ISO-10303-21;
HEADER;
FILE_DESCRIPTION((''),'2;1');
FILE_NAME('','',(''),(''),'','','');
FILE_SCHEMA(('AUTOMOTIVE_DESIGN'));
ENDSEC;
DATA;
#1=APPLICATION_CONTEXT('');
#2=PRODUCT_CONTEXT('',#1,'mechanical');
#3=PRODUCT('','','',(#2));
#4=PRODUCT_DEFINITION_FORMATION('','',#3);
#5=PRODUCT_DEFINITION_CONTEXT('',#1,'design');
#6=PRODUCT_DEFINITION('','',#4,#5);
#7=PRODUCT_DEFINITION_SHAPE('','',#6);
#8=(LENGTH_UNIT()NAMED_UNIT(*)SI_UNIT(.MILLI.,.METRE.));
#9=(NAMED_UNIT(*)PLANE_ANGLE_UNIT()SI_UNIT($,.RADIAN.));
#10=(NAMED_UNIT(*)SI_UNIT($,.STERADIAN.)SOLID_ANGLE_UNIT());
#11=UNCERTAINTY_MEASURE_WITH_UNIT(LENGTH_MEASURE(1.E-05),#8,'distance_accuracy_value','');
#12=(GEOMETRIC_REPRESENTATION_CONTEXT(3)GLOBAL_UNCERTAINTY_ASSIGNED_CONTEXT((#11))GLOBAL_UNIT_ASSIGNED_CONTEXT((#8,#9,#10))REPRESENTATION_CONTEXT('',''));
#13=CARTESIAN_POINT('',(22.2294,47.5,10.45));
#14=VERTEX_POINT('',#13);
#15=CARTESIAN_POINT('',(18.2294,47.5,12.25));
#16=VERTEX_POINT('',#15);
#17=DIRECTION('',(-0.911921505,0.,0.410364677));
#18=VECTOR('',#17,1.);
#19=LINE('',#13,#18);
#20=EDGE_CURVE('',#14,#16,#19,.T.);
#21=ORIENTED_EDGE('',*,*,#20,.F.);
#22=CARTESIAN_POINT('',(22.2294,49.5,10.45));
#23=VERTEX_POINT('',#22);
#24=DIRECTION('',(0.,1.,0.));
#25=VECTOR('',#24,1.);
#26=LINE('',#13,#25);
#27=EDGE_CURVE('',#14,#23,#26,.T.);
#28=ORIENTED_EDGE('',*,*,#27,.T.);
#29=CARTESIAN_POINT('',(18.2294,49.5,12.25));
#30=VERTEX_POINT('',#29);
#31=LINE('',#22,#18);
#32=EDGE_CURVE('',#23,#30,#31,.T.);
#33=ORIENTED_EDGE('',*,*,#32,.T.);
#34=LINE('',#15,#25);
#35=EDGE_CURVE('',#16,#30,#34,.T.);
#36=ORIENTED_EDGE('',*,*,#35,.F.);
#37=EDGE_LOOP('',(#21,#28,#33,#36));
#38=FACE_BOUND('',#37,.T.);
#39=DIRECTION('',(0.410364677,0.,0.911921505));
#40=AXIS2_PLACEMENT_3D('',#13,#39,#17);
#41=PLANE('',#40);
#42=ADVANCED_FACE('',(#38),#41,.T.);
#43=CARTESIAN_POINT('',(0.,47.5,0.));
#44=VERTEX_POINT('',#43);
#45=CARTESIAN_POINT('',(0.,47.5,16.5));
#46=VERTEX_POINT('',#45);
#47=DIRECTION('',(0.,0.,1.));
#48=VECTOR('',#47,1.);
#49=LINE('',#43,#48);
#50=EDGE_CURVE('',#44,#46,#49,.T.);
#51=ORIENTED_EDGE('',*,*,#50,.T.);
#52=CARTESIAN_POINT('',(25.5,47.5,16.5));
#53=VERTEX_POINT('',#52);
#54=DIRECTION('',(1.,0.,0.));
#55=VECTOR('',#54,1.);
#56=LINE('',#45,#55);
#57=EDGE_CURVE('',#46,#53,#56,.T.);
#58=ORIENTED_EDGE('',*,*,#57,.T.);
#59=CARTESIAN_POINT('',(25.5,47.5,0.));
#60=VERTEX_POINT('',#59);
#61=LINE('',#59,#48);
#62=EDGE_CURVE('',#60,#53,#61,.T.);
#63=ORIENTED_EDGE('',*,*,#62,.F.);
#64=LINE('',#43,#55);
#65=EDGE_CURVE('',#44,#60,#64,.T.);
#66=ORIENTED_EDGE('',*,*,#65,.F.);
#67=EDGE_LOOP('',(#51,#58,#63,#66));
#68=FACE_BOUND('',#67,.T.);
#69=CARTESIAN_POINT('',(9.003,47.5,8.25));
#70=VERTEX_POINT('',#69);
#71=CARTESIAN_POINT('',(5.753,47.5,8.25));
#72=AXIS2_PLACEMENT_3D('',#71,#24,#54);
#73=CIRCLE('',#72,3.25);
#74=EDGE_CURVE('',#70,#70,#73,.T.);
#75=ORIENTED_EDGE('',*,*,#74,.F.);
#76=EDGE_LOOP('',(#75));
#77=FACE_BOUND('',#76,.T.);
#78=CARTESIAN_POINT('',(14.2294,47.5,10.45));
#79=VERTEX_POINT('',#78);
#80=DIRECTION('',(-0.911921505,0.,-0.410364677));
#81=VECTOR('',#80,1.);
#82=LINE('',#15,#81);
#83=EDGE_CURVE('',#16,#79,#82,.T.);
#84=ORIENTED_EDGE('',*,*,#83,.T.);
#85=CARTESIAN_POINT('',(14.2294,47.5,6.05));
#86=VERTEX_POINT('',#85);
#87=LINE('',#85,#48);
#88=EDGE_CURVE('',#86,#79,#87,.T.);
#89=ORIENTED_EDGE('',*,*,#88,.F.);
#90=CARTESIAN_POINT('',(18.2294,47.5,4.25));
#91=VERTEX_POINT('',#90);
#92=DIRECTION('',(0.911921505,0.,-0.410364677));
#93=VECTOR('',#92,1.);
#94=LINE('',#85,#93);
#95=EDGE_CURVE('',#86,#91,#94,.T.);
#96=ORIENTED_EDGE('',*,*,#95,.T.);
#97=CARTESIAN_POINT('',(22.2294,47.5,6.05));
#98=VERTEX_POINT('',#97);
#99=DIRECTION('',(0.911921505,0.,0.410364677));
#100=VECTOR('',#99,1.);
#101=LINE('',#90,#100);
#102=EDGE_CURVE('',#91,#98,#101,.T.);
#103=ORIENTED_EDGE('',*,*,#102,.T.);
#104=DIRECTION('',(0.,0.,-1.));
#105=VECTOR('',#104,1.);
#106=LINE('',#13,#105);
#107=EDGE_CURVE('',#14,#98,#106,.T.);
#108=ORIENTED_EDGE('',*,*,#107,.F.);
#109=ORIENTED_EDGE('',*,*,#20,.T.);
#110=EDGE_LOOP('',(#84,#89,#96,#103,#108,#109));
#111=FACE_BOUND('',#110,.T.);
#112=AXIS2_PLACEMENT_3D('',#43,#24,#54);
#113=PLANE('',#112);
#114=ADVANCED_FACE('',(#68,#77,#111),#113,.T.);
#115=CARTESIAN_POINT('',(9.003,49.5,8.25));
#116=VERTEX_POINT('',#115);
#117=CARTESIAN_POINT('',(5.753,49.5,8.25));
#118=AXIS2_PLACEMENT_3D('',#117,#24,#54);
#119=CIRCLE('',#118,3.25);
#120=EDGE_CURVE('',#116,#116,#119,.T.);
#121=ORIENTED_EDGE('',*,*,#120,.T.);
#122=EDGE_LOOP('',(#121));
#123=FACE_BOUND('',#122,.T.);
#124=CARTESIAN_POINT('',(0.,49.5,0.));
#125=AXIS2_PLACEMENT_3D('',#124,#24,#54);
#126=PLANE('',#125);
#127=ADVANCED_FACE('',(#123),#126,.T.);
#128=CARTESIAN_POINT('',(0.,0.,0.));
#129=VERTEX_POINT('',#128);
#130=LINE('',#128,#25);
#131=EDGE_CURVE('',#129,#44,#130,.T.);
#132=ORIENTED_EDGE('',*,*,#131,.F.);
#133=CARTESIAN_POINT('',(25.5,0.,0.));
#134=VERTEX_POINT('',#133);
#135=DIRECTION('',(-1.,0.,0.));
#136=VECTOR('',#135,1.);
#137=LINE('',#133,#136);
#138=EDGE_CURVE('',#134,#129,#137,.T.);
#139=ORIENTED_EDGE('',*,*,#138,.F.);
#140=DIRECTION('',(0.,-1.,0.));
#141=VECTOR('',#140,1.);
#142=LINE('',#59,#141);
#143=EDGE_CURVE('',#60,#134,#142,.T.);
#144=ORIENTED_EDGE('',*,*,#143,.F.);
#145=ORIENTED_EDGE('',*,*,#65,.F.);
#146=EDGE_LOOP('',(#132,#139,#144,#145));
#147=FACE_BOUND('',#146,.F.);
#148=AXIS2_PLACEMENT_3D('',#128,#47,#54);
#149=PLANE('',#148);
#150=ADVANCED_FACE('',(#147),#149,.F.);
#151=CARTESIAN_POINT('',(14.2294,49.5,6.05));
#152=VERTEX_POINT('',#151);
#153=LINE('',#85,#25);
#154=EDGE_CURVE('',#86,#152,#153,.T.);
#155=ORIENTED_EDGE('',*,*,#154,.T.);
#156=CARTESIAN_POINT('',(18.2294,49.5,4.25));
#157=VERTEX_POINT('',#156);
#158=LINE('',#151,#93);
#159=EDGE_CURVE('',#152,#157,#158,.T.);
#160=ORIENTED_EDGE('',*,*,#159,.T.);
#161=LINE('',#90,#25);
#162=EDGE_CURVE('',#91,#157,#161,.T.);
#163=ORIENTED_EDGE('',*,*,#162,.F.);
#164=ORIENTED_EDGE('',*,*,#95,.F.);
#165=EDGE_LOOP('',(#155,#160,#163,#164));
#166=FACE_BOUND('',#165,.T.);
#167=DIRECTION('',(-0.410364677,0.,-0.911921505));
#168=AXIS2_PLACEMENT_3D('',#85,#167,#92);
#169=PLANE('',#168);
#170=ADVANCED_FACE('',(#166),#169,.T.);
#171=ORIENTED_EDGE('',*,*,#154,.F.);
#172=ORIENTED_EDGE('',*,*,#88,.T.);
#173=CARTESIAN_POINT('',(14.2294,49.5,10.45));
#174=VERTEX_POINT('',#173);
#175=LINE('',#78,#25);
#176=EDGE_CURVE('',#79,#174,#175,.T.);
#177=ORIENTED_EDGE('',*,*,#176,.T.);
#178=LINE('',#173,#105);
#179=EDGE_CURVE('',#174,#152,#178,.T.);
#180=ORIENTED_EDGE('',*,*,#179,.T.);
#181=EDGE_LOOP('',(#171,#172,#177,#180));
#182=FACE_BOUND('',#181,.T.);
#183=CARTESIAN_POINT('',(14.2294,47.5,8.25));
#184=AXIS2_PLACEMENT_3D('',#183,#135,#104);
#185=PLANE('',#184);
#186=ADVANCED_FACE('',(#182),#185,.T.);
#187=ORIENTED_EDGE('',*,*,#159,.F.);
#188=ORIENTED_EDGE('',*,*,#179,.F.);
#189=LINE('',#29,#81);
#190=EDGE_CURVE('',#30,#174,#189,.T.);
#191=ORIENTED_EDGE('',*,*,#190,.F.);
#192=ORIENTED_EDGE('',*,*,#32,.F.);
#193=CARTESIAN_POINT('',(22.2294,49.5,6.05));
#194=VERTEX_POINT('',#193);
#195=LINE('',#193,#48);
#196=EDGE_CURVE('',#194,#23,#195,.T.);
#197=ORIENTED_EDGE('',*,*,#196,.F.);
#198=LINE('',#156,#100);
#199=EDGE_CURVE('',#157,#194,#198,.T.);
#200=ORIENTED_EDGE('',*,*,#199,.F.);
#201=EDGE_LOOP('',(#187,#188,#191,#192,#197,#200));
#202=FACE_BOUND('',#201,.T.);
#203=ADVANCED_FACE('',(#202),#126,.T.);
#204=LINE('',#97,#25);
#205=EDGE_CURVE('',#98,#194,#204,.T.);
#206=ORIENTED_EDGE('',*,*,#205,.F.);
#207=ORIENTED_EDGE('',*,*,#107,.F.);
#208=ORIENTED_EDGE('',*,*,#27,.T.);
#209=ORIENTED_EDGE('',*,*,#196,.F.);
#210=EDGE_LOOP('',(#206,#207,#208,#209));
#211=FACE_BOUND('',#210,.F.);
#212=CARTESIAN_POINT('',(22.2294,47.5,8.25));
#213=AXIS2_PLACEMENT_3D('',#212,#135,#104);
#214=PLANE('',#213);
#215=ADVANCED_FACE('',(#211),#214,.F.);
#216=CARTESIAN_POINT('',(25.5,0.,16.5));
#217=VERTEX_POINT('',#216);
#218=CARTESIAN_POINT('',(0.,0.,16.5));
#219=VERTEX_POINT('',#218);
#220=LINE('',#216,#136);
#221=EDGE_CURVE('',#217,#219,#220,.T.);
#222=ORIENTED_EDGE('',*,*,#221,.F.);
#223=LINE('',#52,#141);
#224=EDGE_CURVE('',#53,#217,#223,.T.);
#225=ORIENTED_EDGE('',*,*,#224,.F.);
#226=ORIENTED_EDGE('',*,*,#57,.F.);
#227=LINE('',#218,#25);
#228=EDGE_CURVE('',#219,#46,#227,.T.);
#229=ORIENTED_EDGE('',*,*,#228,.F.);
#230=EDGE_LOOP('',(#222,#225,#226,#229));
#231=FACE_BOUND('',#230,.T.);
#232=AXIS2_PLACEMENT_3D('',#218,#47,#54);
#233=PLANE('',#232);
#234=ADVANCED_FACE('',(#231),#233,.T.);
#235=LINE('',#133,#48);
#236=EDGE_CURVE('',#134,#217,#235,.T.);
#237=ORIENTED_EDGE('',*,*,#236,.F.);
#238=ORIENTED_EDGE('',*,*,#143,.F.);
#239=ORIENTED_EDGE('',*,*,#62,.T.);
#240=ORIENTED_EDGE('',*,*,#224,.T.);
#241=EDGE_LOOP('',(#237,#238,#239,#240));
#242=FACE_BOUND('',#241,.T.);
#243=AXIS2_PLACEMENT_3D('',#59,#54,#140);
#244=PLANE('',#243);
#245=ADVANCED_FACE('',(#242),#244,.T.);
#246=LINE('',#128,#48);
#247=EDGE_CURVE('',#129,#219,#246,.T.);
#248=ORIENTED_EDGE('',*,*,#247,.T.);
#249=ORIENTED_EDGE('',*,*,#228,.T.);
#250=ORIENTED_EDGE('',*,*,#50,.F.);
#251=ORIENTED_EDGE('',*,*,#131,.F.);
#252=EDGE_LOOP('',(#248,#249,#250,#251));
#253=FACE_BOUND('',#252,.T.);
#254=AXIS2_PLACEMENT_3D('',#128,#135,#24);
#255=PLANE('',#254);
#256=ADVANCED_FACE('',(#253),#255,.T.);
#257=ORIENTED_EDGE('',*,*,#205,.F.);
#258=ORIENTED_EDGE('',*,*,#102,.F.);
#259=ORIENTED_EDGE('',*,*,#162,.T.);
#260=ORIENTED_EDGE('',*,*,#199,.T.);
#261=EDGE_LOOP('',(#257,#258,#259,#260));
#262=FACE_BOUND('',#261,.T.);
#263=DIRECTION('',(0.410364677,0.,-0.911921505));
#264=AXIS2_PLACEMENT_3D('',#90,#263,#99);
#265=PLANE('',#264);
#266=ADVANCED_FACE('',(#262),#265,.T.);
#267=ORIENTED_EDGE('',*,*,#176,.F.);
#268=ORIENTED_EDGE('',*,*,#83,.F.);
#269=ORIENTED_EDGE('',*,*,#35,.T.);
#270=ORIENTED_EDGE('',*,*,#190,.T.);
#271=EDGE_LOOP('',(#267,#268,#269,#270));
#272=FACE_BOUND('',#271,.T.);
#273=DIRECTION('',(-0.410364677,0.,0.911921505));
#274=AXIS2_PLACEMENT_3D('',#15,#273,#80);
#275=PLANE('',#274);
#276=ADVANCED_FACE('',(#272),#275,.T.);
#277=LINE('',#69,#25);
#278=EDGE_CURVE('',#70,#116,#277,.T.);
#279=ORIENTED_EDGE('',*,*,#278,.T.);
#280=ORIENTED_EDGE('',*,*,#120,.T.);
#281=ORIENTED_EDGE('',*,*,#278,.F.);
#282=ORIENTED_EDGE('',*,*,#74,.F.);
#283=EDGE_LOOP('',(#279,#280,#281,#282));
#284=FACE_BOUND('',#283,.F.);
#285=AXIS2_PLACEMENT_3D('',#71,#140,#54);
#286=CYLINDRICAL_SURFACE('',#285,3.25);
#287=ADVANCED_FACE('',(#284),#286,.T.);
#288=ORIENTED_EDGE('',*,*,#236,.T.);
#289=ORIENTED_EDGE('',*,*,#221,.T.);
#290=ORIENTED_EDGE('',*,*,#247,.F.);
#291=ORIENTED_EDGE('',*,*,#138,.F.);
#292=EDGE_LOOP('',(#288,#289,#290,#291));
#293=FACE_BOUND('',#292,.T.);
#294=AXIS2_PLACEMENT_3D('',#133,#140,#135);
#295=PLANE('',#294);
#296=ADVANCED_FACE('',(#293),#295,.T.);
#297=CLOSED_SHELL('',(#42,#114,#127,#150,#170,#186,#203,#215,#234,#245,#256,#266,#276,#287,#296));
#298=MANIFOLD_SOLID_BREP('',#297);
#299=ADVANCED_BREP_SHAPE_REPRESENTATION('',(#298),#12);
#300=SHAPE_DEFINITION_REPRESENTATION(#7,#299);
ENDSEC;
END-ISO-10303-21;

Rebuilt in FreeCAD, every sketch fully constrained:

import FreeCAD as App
import Part
import Sketcher
from FreeCAD import Vector


def add_polygon(sketch, points):
    """Adds a closed chain of lines whose ends are joined by coincident constraints."""
    first, n = sketch.GeometryCount, len(points)
    for a, b in zip(points, points[1:] + points[:1]):
        sketch.addGeometry(Part.LineSegment(App.Vector(*a, 0), App.Vector(*b, 0)), False)
    for i in range(n):
        sketch.addConstraint(Sketcher.Constraint("Coincident", first + i, 2, first + (i + 1) % n, 1))

doc = App.newDocument("Part")
body = doc.addObject("PartDesign::Body", "Body")

sketch1 = body.newObject("Sketcher::SketchObject", "Sketch")
sketch1.AttachmentSupport = (doc.getObject("XY_Plane"), [""])
sketch1.MapMode = "FlatFace"
add_polygon(sketch1, [(0, 48), (0, 0), (26, 0), (26, 48)])
sketch1.addConstraint([
    Sketcher.Constraint("Vertical", 0),
    Sketcher.Constraint("Horizontal", 1),
    Sketcher.Constraint("Vertical", 2),
    Sketcher.Constraint("Horizontal", 3),
    Sketcher.Constraint("Coincident", 0, 2, -1, 1),
    Sketcher.Constraint("DistanceX", 1, 1, 1, 2, 25.5),
    Sketcher.Constraint("DistanceY", 0, 2, 0, 1, 47.5),
])
pad1 = body.newObject("PartDesign::Pad", "Pad")
pad1.Profile = sketch1
pad1.Length = 16.5

sketch2 = body.newObject("Sketcher::SketchObject", "Sketch001")
sketch2.AttachmentSupport = (doc.getObject("XZ_Plane"), [""])
sketch2.MapMode = "FlatFace"
sketch2.AttachmentOffset = App.Placement(Vector(0, 0, -47.5), App.Rotation())
sketch2.addGeometry(Part.Circle(Vector(5.8, 8.2, 0), Vector(0, 0, 1), 3.2), False)
add_polygon(sketch2, [(14.2, 6), (14.2, 10.4), (18.2, 12.2), (22.2, 10.4), (22.2, 6), (18.2, 4.2)])
sketch2.addConstraint([
    Sketcher.Constraint("Vertical", 1),
    Sketcher.Constraint("Vertical", 4),
    Sketcher.Constraint("Parallel", 2, 5),
    Sketcher.Constraint("Parallel", 3, 6),
    Sketcher.Constraint("Horizontal", 1, 2, 3, 2),
    Sketcher.Constraint("Horizontal", 4, 2, 6, 2),
    Sketcher.Constraint("Vertical", 2, 2, 5, 2),
    Sketcher.Constraint("Diameter", 0, 6.5),
    Sketcher.Constraint("DistanceY", 0, 3, 1, 2, 2.2),
    Sketcher.Constraint("DistanceY", 4, 2, 0, 3, 2.2),
    Sketcher.Constraint("DistanceX", 1, 2, 2, 2, 4.0),
    Sketcher.Constraint("DistanceY", 0, 3, 2, 2, 4.0),
    Sketcher.Constraint("DistanceY", -1, 1, 0, 3, 8.25),
    Sketcher.Constraint("DistanceX", -1, 1, 0, 3, 5.753),
    Sketcher.Constraint("DistanceX", -1, 1, 1, 2, 14.2294),
])
pad2 = body.newObject("PartDesign::Pad", "Pad001")
pad2.Profile = sketch2
pad2.Length = 2
pad2.Reversed = True

doc.recompute()
